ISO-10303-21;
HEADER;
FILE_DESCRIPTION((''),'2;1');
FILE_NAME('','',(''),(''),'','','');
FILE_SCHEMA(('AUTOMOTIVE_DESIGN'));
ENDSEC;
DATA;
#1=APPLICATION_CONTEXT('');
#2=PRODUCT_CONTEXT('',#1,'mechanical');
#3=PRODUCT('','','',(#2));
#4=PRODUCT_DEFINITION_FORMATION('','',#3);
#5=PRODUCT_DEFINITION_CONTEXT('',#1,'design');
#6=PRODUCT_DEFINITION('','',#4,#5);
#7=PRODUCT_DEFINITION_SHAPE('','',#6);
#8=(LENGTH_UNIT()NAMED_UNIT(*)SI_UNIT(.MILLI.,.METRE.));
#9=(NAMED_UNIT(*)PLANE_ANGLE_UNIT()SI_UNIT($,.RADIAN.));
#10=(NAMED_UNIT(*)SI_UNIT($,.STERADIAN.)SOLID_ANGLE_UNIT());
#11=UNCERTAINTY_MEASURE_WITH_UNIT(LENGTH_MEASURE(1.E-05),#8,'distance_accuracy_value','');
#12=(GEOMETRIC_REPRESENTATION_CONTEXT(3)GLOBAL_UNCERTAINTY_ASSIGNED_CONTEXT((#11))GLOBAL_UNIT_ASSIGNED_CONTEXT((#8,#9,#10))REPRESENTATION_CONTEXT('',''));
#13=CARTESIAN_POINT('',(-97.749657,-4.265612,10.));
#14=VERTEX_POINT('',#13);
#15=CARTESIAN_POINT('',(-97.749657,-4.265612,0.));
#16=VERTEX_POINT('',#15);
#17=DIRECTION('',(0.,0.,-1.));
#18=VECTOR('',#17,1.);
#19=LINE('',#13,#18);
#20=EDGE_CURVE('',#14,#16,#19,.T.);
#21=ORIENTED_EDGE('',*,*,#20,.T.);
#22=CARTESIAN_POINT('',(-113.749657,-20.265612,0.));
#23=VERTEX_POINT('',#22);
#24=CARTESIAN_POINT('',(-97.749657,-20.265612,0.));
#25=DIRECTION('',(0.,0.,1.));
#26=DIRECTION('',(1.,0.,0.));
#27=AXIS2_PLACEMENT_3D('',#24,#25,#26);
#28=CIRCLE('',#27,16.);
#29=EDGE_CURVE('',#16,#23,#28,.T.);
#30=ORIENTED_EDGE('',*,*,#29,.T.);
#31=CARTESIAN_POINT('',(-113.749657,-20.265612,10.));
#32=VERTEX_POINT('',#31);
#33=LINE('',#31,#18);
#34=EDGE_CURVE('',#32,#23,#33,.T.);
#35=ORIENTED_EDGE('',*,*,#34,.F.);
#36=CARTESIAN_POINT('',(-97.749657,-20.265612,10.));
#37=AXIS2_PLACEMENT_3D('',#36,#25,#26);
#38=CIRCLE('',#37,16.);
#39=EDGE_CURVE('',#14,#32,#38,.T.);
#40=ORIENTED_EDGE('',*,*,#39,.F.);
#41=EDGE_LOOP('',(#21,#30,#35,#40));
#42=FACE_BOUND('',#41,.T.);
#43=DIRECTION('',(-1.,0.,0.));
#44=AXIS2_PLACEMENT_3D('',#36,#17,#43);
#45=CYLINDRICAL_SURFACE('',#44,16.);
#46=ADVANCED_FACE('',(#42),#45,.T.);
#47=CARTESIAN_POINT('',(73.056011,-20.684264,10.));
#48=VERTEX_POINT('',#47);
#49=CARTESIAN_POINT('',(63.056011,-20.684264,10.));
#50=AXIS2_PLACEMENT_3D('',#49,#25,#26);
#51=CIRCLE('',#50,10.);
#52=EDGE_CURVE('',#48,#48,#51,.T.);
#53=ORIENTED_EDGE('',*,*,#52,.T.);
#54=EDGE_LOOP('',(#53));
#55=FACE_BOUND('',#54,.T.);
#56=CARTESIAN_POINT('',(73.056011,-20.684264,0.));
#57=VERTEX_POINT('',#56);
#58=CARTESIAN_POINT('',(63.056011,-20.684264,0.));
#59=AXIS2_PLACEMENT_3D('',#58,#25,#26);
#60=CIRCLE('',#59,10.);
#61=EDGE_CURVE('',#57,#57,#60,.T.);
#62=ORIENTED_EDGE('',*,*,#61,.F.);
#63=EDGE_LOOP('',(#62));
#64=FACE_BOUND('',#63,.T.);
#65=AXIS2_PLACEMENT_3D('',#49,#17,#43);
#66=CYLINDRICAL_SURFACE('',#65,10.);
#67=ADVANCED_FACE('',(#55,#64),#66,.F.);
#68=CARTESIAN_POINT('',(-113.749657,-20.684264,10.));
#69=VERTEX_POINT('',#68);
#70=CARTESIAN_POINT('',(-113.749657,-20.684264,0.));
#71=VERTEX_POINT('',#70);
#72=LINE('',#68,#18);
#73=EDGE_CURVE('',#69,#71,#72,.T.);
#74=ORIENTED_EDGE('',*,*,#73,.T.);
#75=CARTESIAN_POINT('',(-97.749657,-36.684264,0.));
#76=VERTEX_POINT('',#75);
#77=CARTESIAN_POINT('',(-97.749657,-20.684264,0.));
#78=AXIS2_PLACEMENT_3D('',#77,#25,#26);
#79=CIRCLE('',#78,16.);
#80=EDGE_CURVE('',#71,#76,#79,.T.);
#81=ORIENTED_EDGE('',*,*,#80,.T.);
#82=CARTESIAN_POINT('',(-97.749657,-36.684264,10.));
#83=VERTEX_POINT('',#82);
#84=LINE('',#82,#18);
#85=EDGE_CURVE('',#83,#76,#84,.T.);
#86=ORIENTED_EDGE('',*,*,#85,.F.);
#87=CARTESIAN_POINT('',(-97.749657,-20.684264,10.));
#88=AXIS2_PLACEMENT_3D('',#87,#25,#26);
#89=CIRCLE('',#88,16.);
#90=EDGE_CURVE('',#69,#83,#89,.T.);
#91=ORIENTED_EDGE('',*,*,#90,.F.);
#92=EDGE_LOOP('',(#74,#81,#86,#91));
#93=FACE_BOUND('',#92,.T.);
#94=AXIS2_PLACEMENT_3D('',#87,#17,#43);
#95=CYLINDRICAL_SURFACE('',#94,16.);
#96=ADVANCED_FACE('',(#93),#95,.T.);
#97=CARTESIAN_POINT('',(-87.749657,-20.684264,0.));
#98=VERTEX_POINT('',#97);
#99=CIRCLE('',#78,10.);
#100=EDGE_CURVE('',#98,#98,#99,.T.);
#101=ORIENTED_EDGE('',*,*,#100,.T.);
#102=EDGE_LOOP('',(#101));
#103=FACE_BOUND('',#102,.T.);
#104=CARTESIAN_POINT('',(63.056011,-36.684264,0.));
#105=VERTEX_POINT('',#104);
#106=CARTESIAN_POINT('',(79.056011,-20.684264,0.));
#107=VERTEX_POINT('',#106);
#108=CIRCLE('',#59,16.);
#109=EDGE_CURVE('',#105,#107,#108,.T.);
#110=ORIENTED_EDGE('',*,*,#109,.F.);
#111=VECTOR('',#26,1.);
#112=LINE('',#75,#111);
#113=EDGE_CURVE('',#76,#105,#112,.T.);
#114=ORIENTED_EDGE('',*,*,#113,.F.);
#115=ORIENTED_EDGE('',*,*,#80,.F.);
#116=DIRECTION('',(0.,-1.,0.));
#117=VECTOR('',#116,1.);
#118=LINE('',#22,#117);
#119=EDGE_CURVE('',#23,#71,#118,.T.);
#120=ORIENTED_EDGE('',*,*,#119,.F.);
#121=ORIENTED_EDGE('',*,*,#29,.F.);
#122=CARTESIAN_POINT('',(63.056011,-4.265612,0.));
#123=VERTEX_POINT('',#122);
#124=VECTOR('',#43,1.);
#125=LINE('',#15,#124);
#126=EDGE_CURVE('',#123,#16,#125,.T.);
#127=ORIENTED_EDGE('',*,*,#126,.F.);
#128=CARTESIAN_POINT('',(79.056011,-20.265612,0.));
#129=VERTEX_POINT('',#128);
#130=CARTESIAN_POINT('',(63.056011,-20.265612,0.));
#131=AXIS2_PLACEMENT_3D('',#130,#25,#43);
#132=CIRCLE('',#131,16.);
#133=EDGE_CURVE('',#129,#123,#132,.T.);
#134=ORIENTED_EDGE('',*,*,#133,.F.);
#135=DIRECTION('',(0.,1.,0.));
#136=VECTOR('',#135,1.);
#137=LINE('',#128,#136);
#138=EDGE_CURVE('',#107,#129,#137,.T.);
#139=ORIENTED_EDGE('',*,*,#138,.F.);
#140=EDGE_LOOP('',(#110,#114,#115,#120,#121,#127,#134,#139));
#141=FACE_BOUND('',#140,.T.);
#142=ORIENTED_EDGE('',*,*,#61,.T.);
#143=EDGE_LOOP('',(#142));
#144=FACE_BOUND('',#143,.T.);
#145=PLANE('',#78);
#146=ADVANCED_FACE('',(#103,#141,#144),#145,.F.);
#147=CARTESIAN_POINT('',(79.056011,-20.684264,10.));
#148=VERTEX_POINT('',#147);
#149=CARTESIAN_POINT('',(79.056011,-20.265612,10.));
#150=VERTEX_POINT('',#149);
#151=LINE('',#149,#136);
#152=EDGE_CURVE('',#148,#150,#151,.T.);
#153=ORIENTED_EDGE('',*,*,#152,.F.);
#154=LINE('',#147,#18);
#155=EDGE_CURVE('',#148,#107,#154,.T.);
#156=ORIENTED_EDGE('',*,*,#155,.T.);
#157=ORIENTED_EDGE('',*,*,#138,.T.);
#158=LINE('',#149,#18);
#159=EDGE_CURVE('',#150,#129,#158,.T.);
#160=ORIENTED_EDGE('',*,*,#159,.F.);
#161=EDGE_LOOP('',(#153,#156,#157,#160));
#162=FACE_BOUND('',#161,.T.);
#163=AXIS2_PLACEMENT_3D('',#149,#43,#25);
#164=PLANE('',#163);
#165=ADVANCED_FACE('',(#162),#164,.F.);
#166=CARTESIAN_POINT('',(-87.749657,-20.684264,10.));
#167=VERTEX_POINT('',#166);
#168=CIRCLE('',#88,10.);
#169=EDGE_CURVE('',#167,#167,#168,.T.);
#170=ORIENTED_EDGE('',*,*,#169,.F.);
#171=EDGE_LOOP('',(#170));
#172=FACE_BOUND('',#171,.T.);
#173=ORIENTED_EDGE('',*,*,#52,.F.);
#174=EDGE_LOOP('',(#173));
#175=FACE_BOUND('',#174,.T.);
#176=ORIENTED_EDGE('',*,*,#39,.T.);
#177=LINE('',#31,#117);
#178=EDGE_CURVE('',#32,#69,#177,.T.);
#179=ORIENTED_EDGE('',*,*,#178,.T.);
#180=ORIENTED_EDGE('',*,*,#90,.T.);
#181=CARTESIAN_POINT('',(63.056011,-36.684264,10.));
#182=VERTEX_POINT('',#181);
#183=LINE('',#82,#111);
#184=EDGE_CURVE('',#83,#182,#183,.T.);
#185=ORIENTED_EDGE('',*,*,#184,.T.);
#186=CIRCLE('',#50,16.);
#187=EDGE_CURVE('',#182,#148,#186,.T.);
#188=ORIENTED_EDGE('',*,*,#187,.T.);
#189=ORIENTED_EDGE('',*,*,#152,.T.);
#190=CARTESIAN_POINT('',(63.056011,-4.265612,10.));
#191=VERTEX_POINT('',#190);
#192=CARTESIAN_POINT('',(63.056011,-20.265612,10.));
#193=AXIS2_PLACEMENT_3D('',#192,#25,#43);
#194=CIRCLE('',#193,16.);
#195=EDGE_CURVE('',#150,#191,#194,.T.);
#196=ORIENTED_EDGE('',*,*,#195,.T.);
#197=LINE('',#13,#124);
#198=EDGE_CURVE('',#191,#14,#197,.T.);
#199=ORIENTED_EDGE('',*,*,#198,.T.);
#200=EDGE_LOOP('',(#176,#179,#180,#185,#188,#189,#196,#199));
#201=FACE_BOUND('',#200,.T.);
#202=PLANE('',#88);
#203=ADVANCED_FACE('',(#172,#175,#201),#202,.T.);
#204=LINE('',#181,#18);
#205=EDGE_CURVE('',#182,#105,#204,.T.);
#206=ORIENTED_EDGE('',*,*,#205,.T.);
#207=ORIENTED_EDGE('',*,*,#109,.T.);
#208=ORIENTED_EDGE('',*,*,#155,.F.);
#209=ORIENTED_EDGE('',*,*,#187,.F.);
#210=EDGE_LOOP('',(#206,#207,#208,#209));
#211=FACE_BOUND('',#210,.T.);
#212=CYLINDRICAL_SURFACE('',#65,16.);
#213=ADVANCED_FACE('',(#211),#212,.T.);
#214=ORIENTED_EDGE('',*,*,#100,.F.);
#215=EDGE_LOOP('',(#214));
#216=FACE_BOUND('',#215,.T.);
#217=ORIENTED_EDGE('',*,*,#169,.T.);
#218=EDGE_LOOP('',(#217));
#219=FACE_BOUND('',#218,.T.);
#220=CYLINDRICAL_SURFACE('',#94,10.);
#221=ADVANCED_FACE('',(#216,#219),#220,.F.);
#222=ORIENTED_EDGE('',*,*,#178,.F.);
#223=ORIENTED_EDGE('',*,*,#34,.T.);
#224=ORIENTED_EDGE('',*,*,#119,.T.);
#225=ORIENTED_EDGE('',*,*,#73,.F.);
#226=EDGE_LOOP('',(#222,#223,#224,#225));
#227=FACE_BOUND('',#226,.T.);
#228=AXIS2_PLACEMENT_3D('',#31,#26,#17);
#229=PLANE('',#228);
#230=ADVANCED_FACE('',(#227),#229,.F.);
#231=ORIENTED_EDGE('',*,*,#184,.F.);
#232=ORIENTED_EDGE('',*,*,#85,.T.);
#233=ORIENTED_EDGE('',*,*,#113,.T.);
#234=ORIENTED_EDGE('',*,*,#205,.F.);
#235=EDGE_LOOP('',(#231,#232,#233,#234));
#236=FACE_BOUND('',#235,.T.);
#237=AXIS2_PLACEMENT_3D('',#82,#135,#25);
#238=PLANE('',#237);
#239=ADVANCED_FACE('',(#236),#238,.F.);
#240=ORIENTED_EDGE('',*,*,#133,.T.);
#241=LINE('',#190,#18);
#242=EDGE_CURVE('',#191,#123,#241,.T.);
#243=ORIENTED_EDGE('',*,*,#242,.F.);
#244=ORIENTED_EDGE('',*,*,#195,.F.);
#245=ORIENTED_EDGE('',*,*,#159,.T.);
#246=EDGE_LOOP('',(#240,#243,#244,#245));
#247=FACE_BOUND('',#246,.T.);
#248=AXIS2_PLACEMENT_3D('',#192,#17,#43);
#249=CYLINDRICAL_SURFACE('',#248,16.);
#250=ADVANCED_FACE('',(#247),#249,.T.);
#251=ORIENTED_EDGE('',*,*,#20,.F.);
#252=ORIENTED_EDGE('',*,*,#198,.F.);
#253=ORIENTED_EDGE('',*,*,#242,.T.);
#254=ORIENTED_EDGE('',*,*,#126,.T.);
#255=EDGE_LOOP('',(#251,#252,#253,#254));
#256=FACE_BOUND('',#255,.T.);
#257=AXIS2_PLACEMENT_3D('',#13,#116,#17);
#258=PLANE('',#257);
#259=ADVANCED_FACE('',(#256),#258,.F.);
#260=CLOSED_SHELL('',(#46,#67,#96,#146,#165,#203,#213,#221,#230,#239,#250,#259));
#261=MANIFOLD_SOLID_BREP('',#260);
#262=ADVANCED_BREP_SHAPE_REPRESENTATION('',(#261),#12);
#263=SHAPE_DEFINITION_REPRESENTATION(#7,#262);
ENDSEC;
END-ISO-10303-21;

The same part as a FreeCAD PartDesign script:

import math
import FreeCAD as App
import Part
import Sketcher

V = App.Vector
Q = App.Units.Quantity

doc = App.newDocument("Part")
params = doc.addObject("Spreadsheet::Sheet", "Params")
for row, (alias, value) in enumerate([
    ("sketch1_diameter", "20 mm"),
    ("sketch1_radius", "16 mm"),
    ("pad1_length", "10 mm"),
], start=1):
    params.set(f"A{row}", alias)
    params.set(f"B{row}", "=" + value)
    params.setAlias(f"B{row}", alias)

body = doc.addObject("PartDesign::Body", "Body")

sketch1 = doc.addObject("Sketcher::SketchObject", "Sketch")
body.addObject(sketch1)
sketch1.AttachmentSupport = (doc.XY_Plane, [""])
sketch1.MapMode = "FlatFace"
sketch1.addGeometry(Part.LineSegment(V(63.056011, -4.265612, 0), V(-97.749657, -4.265612, 0)), False)
sketch1.addGeometry(Part.ArcOfCircle(Part.Circle(V(-97.749657, -20.265612, 0), V(0, 0, 1), 16), math.radians(90), math.radians(180)), False)
sketch1.addGeometry(Part.LineSegment(V(-113.749657, -20.265612, 0), V(-113.749657, -20.684264, 0)), False)
sketch1.addGeometry(Part.ArcOfCircle(Part.Circle(V(-97.749657, -20.684264, 0), V(0, 0, 1), 16), math.radians(180), math.radians(270)), False)
sketch1.addGeometry(Part.LineSegment(V(-97.749657, -36.684264, 0), V(63.056011, -36.684264, 0)), False)
sketch1.addGeometry(Part.ArcOfCircle(Part.Circle(V(63.056011, -20.684264, 0), V(0, 0, 1), 16), math.radians(-90), math.radians(0)), False)
sketch1.addGeometry(Part.LineSegment(V(79.056011, -20.684264, 0), V(79.056011, -20.265612, 0)), False)
sketch1.addGeometry(Part.ArcOfCircle(Part.Circle(V(63.056011, -20.265612, 0), V(0, 0, 1), 16), math.radians(0), math.radians(90)), False)
sketch1.addGeometry(Part.Circle(V(63.056011, -20.684264, 0), V(0, 0, 1), 10), False)
sketch1.addGeometry(Part.Circle(V(-97.749657, -20.684264, 0), V(0, 0, 1), 10), False)
sketch1.addConstraint(Sketcher.Constraint("Tangent", 0, 2, 1, 1))
sketch1.addConstraint(Sketcher.Constraint("Tangent", 1, 2, 2, 1))
sketch1.addConstraint(Sketcher.Constraint("Tangent", 2, 2, 3, 1))
sketch1.addConstraint(Sketcher.Constraint("Tangent", 3, 2, 4, 1))
sketch1.addConstraint(Sketcher.Constraint("Tangent", 4, 2, 5, 1))
sketch1.addConstraint(Sketcher.Constraint("Tangent", 5, 2, 6, 1))
sketch1.addConstraint(Sketcher.Constraint("Tangent", 6, 2, 7, 1))
sketch1.addConstraint(Sketcher.Constraint("Tangent", 7, 2, 0, 1))
sketch1.addConstraint(Sketcher.Constraint("Horizontal", 0))
sketch1.addConstraint(Sketcher.Constraint("Vertical", 2))
sketch1.addConstraint(Sketcher.Constraint("Horizontal", 4))
sketch1.addConstraint(Sketcher.Constraint("Vertical", 6))
sketch1.addConstraint(Sketcher.Constraint("Coincident", 8, 3, 5, 3))
sketch1.addConstraint(Sketcher.Constraint("Coincident", 9, 3, 3, 3))
sketch1.addConstraint(Sketcher.Constraint("Equal", 1, 3))
sketch1.addConstraint(Sketcher.Constraint("Equal", 3, 5))
sketch1.addConstraint(Sketcher.Constraint("Equal", 5, 7))
sketch1.addConstraint(Sketcher.Constraint("Equal", 8, 9))
sketch1.addConstraint(Sketcher.Constraint("Diameter", 8, Q("20 mm")))
sketch1.addConstraint(Sketcher.Constraint("Radius", 1, Q("16 mm")))
sketch1.addConstraint(Sketcher.Constraint("DistanceX", 0, 2, 0, 1, Q("160.805668 mm")))
sketch1.addConstraint(Sketcher.Constraint("DistanceY", 2, 2, 2, 1, Q("0.418652 mm")))
sketch1.addConstraint(Sketcher.Constraint("DistanceX", -1, 1, 5, 3, Q("63.056011 mm")))
sketch1.addConstraint(Sketcher.Constraint("DistanceY", 1, 3, -1, 1, Q("20.265612 mm")))
sketch1.setExpression("Constraints[18]", "Params.sketch1_diameter")
sketch1.setExpression("Constraints[19]", "Params.sketch1_radius")
pad1 = doc.addObject("PartDesign::Pad", "Pad")
body.addObject(pad1)
pad1.Profile = sketch1
pad1.setExpression("Length", "Params.pad1_length")

doc.recompute()
